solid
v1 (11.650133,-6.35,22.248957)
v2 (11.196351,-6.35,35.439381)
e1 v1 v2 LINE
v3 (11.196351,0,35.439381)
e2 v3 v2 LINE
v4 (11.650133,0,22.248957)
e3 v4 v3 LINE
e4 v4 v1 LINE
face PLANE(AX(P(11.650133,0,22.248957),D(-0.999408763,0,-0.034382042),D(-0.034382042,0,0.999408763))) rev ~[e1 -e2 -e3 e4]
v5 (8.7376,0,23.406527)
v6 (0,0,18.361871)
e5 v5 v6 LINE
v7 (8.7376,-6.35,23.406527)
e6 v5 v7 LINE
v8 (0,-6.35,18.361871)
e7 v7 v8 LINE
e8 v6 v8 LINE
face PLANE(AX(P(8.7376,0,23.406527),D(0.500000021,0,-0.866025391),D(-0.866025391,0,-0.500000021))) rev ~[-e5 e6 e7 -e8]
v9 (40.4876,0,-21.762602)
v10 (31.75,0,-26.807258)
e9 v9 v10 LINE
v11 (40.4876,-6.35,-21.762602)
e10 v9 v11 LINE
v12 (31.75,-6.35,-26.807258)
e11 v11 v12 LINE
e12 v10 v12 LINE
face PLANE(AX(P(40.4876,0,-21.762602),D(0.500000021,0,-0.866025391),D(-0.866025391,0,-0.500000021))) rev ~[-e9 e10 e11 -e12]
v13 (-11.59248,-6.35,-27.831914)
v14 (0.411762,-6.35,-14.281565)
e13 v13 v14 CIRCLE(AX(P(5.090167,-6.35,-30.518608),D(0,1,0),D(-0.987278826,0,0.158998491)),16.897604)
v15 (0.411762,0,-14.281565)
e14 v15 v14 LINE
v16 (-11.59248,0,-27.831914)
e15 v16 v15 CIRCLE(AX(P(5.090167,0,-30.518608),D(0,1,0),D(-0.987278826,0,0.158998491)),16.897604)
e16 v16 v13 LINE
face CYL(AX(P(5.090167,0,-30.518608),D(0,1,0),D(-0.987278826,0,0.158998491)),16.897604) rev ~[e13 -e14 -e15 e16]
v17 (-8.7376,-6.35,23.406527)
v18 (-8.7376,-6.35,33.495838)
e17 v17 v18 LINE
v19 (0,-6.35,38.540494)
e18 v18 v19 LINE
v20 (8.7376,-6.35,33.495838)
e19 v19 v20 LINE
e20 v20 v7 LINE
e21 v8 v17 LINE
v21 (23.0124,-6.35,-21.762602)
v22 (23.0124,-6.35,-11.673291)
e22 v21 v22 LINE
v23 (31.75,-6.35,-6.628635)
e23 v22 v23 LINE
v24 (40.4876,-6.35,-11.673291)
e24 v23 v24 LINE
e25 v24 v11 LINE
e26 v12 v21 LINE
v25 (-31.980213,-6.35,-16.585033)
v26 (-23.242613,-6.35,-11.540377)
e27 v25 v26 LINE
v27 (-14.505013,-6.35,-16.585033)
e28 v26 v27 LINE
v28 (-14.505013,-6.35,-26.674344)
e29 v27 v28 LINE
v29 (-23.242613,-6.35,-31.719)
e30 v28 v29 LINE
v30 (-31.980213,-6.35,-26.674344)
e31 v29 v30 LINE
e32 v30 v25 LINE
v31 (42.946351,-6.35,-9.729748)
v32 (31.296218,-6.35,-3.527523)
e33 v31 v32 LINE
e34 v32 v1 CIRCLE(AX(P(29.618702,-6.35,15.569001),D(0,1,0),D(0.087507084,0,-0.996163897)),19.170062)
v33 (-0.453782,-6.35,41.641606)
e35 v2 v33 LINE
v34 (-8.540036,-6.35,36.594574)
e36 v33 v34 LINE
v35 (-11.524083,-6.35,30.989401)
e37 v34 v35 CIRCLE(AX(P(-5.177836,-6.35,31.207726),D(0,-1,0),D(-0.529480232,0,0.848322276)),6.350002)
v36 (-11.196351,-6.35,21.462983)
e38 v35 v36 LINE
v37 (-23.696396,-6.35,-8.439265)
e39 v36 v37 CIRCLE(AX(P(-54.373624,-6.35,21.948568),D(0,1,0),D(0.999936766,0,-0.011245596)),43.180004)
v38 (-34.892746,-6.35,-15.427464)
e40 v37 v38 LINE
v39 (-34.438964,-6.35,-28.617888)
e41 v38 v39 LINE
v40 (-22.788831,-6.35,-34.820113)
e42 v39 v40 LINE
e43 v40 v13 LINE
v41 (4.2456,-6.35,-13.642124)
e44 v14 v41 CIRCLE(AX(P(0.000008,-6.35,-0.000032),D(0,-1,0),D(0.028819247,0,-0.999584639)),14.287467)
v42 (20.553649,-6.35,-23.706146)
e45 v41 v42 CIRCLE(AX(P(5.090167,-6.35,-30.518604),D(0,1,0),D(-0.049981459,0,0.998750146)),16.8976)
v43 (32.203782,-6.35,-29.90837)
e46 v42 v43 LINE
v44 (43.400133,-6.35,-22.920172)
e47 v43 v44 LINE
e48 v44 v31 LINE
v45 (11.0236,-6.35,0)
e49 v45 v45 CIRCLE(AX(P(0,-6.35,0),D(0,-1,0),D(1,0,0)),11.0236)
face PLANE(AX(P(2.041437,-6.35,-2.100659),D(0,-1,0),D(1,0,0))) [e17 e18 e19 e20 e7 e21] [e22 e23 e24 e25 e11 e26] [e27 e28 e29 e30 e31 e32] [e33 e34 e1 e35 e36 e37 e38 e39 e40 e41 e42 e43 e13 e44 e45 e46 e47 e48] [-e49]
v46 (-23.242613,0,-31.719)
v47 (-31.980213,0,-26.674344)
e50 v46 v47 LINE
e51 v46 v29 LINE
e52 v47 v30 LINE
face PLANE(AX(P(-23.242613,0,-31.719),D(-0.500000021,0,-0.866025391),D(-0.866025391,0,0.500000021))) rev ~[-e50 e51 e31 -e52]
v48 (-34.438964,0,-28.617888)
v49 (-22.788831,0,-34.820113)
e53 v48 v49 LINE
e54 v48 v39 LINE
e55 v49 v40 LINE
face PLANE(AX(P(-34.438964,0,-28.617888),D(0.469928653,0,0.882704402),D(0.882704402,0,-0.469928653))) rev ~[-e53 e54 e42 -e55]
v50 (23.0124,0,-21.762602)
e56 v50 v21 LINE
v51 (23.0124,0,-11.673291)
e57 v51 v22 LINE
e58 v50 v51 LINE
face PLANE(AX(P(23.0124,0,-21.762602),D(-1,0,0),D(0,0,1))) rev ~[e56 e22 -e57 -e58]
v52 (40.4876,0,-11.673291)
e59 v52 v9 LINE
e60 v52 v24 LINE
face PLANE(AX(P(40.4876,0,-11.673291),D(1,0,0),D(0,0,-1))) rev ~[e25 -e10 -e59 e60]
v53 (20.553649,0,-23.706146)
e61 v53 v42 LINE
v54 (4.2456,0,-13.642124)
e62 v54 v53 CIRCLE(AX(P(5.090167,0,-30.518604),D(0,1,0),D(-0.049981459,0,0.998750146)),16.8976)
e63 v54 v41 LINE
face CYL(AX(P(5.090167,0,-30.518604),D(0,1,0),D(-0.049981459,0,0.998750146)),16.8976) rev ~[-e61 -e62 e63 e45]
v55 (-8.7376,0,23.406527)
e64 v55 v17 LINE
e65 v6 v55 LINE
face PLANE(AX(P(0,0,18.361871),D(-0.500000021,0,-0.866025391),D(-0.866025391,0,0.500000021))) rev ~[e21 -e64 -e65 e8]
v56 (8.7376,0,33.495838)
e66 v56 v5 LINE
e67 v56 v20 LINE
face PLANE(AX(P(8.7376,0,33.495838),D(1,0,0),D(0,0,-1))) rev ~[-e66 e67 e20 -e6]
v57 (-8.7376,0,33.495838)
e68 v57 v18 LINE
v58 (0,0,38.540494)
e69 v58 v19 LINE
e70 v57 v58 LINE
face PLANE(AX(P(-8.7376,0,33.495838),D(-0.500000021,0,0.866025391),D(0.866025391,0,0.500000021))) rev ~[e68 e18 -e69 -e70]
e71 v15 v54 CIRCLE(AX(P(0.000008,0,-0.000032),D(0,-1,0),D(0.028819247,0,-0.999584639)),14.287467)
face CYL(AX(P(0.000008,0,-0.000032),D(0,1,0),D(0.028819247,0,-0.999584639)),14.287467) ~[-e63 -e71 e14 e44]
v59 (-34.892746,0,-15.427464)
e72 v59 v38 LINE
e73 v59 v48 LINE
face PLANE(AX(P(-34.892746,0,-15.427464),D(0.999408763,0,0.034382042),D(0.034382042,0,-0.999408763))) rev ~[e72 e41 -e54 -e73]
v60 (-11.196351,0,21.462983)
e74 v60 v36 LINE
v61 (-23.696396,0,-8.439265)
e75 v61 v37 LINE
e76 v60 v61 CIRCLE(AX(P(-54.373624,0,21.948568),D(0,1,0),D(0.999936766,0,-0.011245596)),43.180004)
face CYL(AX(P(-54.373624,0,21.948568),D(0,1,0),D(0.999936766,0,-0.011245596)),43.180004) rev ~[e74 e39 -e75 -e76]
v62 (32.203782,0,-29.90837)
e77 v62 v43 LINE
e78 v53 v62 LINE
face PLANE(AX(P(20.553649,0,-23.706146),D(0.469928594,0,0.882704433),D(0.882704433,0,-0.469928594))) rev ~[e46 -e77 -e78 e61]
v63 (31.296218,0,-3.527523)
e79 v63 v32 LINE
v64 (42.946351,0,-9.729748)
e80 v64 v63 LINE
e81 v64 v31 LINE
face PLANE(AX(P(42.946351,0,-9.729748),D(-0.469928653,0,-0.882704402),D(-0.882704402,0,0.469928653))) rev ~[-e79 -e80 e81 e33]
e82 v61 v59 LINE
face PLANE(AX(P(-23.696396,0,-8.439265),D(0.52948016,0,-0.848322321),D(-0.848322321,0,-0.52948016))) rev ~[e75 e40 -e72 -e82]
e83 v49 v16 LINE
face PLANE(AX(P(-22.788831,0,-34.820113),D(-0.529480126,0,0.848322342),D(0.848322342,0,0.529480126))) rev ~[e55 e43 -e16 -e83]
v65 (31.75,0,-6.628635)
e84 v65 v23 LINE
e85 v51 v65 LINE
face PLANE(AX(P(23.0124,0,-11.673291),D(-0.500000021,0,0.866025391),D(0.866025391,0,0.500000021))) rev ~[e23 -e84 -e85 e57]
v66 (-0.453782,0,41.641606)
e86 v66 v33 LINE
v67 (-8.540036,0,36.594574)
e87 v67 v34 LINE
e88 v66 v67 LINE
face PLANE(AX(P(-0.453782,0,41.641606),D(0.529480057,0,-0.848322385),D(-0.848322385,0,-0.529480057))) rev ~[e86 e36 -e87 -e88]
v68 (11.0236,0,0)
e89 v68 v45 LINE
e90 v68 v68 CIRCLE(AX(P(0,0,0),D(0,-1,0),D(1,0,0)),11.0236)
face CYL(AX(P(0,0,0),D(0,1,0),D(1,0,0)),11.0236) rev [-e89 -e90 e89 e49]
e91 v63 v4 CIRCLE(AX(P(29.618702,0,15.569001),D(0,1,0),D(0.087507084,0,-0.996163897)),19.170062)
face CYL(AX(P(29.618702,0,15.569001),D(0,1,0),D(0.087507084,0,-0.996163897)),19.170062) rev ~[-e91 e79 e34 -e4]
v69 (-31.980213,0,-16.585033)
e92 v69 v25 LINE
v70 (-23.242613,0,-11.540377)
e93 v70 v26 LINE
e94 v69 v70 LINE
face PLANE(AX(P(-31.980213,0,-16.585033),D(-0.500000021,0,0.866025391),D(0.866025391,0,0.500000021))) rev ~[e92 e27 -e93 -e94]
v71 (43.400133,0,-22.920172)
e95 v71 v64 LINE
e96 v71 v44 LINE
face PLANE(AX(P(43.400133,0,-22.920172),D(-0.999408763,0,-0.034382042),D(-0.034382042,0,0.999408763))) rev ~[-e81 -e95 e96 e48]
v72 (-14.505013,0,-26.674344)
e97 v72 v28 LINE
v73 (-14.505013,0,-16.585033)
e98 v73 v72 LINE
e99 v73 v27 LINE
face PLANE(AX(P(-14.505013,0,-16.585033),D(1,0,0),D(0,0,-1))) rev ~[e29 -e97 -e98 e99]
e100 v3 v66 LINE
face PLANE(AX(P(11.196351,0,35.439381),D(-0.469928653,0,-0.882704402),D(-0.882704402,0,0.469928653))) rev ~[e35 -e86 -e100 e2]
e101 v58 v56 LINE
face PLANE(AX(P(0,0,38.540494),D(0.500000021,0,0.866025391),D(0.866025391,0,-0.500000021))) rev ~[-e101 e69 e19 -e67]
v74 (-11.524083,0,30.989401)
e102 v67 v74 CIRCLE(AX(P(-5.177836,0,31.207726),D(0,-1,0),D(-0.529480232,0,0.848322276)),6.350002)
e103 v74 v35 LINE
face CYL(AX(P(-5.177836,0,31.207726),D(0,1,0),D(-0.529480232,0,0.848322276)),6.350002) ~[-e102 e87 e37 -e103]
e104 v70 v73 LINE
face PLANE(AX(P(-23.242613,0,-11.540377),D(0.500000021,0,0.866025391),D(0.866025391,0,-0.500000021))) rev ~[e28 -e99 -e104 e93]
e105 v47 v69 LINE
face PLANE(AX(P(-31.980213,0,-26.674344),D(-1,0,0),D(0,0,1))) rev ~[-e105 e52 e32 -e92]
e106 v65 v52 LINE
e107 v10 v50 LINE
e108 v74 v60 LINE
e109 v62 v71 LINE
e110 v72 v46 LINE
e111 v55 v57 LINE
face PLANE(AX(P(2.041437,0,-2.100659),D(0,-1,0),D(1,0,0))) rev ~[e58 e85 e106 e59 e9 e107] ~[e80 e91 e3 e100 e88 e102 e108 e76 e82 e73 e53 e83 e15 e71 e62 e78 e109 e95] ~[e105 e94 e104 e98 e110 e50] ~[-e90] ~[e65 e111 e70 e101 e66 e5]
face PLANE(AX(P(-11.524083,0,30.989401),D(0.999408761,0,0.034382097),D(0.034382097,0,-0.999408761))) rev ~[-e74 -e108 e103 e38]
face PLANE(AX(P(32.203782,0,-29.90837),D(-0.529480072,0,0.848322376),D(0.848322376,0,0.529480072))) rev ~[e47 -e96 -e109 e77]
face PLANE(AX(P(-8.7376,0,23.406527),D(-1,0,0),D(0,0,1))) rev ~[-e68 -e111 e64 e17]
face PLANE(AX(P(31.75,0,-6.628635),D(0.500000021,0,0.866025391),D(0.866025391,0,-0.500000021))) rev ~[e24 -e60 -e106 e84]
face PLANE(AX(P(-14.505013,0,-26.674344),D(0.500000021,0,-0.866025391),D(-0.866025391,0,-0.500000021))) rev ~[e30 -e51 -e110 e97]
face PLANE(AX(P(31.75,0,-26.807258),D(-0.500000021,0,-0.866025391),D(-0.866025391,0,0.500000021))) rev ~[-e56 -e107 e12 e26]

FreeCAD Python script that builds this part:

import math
import FreeCAD as App
import Part
import Sketcher
from FreeCAD import Vector
Q = App.Units.Quantity


def add_polygon(sketch, points):
    """Adds a closed chain of lines whose ends are joined by coincident constraints."""
    first, n = sketch.GeometryCount, len(points)
    for a, b in zip(points, points[1:] + points[:1]):
        sketch.addGeometry(Part.LineSegment(App.Vector(*a, 0), App.Vector(*b, 0)), False)
    for i in range(n):
        sketch.addConstraint(Sketcher.Constraint("Coincident", first + i, 2, first + (i + 1) % n, 1))

doc = App.newDocument("Part")
body = doc.addObject("PartDesign::Body", "Body")

# Sketch on XZ plane
sketch1 = doc.addObject("Sketcher::SketchObject", "Sketch")
body.addObject(sketch1)
sketch1.AttachmentSupport = (doc.XZ_Plane, [""])
sketch1.MapMode = "FlatFace"
sketch1.addGeometry(Part.ArcOfCircle(Part.Circle(Vector(5.090167, -30.518608, 0), Vector(0, 0, 1), 16.897604), math.radians(106.073361), math.radians(170.85123)), False)  # 0
sketch1.addGeometry(Part.ArcOfCircle(Part.Circle(Vector(0.000008, -0.000032, 0), Vector(0, 0, 1), 14.287467), math.radians(-88.34855), math.radians(-72.713196)), False)  # 1
sketch1.addGeometry(Part.ArcOfCircle(Part.Circle(Vector(5.090167, -30.518604, 0), Vector(0, 0, 1), 16.8976), math.radians(23.775955), math.radians(92.86492)), False)  # 2
sketch1.addGeometry(Part.LineSegment(Vector(20.553649, -23.706146, 0), Vector(32.203782, -29.90837, 0)), False)  # 3
sketch1.addGeometry(Part.LineSegment(Vector(32.203782, -29.90837, 0), Vector(43.400133, -22.920172, 0)), False)  # 4
sketch1.addGeometry(Part.LineSegment(Vector(43.400133, -22.920172, 0), Vector(42.946351, -9.729748, 0)), False)  # 5
sketch1.addGeometry(Part.LineSegment(Vector(42.946351, -9.729748, 0), Vector(31.296218, -3.527523, 0)), False)  # 6
sketch1.addGeometry(Part.ArcOfCircle(Part.Circle(Vector(29.618702, 15.569001, 0), Vector(0, 0, 1), 19.170062), math.radians(159.606988), math.radians(275.020208)), False)  # 7
sketch1.addGeometry(Part.LineSegment(Vector(11.650133, 22.248957, 0), Vector(11.196351, 35.439381, 0)), False)  # 8
sketch1.addGeometry(Part.LineSegment(Vector(11.196351, 35.439381, 0), Vector(-0.453782, 41.641606, 0)), False)  # 9
sketch1.addGeometry(Part.LineSegment(Vector(-0.453782, 41.641606, 0), Vector(-8.540036, 36.594574, 0)), False)  # 10
sketch1.addGeometry(Part.ArcOfCircle(Part.Circle(Vector(-5.177836, 31.207726, 0), Vector(0, 0, 1), 6.350002), math.radians(121.970343), math.radians(181.970326)), False)  # 11
sketch1.addGeometry(Part.LineSegment(Vector(-11.524083, 30.989401, 0), Vector(-11.196351, 21.462983, 0)), False)  # 12
sketch1.addGeometry(Part.ArcOfCircle(Part.Circle(Vector(-54.373624, 21.948568, 0), Vector(0, 0, 1), 43.180004), math.radians(-44.72847), math.radians(-0.644339)), False)  # 13
sketch1.addGeometry(Part.LineSegment(Vector(-23.696396, -8.439265, 0), Vector(-34.892746, -15.427464, 0)), False)  # 14
sketch1.addGeometry(Part.LineSegment(Vector(-34.892746, -15.427464, 0), Vector(-34.438964, -28.617888, 0)), False)  # 15
sketch1.addGeometry(Part.LineSegment(Vector(-34.438964, -28.617888, 0), Vector(-22.788831, -34.820113, 0)), False)  # 16
sketch1.addGeometry(Part.LineSegment(Vector(-22.788831, -34.820113, 0), Vector(-11.59248, -27.831914, 0)), False)  # 17
add_polygon(sketch1, [(-14.505013, -16.585033), (-14.505013, -26.674344), (-23.242613, -31.719), (-31.980213, -26.674344), (-31.980213, -16.585033), (-23.242613, -11.540377)])  # lines 18-23
sketch1.addGeometry(Part.Circle(Vector(0, 0, 0), Vector(0, 0, 1), 11.0236), False)  # 24
add_polygon(sketch1, [(23.0124, -11.673291), (31.75, -6.628635), (40.4876, -11.673291), (40.4876, -21.762602), (31.75, -26.807258), (23.0124, -21.762602)])  # lines 25-30
add_polygon(sketch1, [(-8.7376, 33.495838), (0, 38.540494), (8.7376, 33.495838), (8.7376, 23.406527), (0, 18.361871), (-8.7376, 23.406527)])  # lines 31-36
sketch1.addConstraint([
    Sketcher.Constraint("Coincident", 0, 1, 1, 1),
    Sketcher.Constraint("Coincident", 1, 2, 2, 2),
    Sketcher.Constraint("Coincident", 2, 1, 3, 1),
    Sketcher.Constraint("Coincident", 3, 2, 4, 1),
    Sketcher.Constraint("Coincident", 4, 2, 5, 1),
    Sketcher.Constraint("Coincident", 5, 2, 6, 1),
    Sketcher.Constraint("Coincident", 6, 2, 7, 2),
    Sketcher.Constraint("Coincident", 7, 1, 8, 1),
    Sketcher.Constraint("Coincident", 8, 2, 9, 1),
    Sketcher.Constraint("Coincident", 9, 2, 10, 1),
    Sketcher.Constraint("Tangent", 10, 2, 11, 1),
    Sketcher.Constraint("Tangent", 11, 2, 12, 1),
    Sketcher.Constraint("Coincident", 12, 2, 13, 2),
    Sketcher.Constraint("Coincident", 13, 1, 14, 1),
    Sketcher.Constraint("Coincident", 14, 2, 15, 1),
    Sketcher.Constraint("Coincident", 15, 2, 16, 1),
    Sketcher.Constraint("Coincident", 16, 2, 17, 1),
    Sketcher.Constraint("Coincident", 17, 2, 0, 2),
    Sketcher.Constraint("Vertical", 18),
    Sketcher.Constraint("Vertical", 21),
    Sketcher.Constraint("Vertical", 27),
    Sketcher.Constraint("Vertical", 30),
    Sketcher.Constraint("Vertical", 33),
    Sketcher.Constraint("Vertical", 36),
    Sketcher.Constraint("Coincident", 24, 3, -1, 1),
    Sketcher.Constraint("Coincident", 2, 3, 0, 3),
    Sketcher.Constraint("Symmetric", 33, 2, 35, 2, -2),
    Sketcher.Constraint("PointOnObject", 31, 2, -2),
    Sketcher.Constraint("PointOnObject", 34, 2, -2),
    Sketcher.Constraint("Parallel", 3, 6),
    Sketcher.Constraint("Parallel", 5, 8),
    Sketcher.Constraint("Parallel", 6, 9),
    Sketcher.Constraint("Parallel", 4, 10),
    Sketcher.Constraint("Parallel", 8, 12),
    Sketcher.Constraint("Parallel", 10, 14),
    Sketcher.Constraint("Parallel", 12, 15),
    Sketcher.Constraint("Parallel", 9, 16),
    Sketcher.Constraint("Parallel", 14, 17),
    Sketcher.Constraint("Parallel", 19, 22),
    Sketcher.Constraint("Parallel", 20, 23),
    Sketcher.Constraint("Parallel", 22, 25),
    Sketcher.Constraint("Parallel", 23, 26),
    Sketcher.Constraint("Parallel", 25, 28),
    Sketcher.Constraint("Parallel", 26, 29),
    Sketcher.Constraint("Parallel", 28, 31),
    Sketcher.Constraint("Parallel", 29, 32),
    Sketcher.Constraint("Parallel", 31, 34),
    Sketcher.Constraint("Parallel", 32, 35),
    Sketcher.Constraint("Horizontal", 18, 2, 20, 2),
    Sketcher.Constraint("Horizontal", 21, 2, 23, 2),
    Sketcher.Constraint("Horizontal", 27, 2, 29, 2),
    Sketcher.Constraint("Horizontal", 26, 2, 30, 2),
    Sketcher.Constraint("Equal", 21, 27),
    Sketcher.Constraint("Equal", 30, 33),
    Sketcher.Constraint("Equal", 3, 4),
    Sketcher.Constraint("Equal", 4, 5),
    Sketcher.Constraint("Equal", 5, 6),
    Sketcher.Constraint("Equal", 6, 8),
    Sketcher.Constraint("Equal", 8, 9),
    Sketcher.Constraint("Equal", 10, 12),
    Sketcher.Constraint("Equal", 9, 14),
    Sketcher.Constraint("Equal", 14, 15),
    Sketcher.Constraint("Equal", 15, 16),
    Sketcher.Constraint("Equal", 16, 17),
    Sketcher.Constraint("Equal", 23, 25),
    Sketcher.Constraint("Equal", 29, 31),
    Sketcher.Constraint("Radius", 13, Q("1.7000001 in")),
    Sketcher.Constraint("Radius", 11, Q("0.2500001 in")),
    Sketcher.Constraint("Diameter", 24, Q("0.868 in")),
    Sketcher.Constraint("Angle", 19, Q("-149.999999 deg")),
    Sketcher.Constraint("DistanceX", -1, 1, 25, 2, Q("1.25 in")),
    Sketcher.Constraint("Radius", 2, 16.8976),
    Sketcher.Constraint("DistanceX", -1, 1, 26, 2, Q("1.594 in")),
    Sketcher.Constraint("Radius", 0, 16.897604),
    Sketcher.Constraint("Radius", 1, 14.287467),
    Sketcher.Constraint("Radius", 7, 19.170062),
    Sketcher.Constraint("DistanceX", 1, 3, 0, 3, Q("0.2003999 in")),
    Sketcher.Constraint("DistanceY", 18, 2, 18, 1, 10.089311),
    Sketcher.Constraint("DistanceX", -1, 1, 7, 3, 29.618702),
    Sketcher.Constraint("DistanceY", -1, 1, 7, 3, 15.569001),
    Sketcher.Constraint("DistanceX", -1, 1, 1, 2, 4.2456),
    Sketcher.Constraint("DistanceY", -1, 1, 11, 2, 30.989401),
    Sketcher.Constraint("DistanceY", 19, 2, -1, 1, 31.719),
    Sketcher.Constraint("DistanceY", 1, 3, 13, 3, 21.9486),
    Sketcher.Constraint("DistanceY", 3, 2, 4, 2, 6.988198),
    Sketcher.Constraint("DistanceX", 2, 1, 5, 2, 22.392702),
    Sketcher.Constraint("DistanceX", 10, 2, 11, 3, 3.3622),
    Sketcher.Constraint("DistanceX", 11, 2, 9, 2, 11.070301),
    Sketcher.Constraint("DistanceY", 0, 1, 13, 1, 5.8423),
    Sketcher.Constraint("DistanceY", 33, 2, 11, 3, 7.801199),
    Sketcher.Constraint("DistanceX", -1, 1, 2, 1, 20.553649),
    Sketcher.Constraint("DistanceX", -1, 1, 3, 2, 32.203782),
    Sketcher.Constraint("DistanceY", 26, 2, -1, 1, 11.673291),
    Sketcher.Constraint("DistanceX", 18, 2, 2, 3, 19.59518),
])
pad1 = doc.addObject("PartDesign::Pad", "Pad")
body.addObject(pad1)
pad1.Profile = sketch1
pad1.Length = Q("0.25 in")

doc.recompute()
